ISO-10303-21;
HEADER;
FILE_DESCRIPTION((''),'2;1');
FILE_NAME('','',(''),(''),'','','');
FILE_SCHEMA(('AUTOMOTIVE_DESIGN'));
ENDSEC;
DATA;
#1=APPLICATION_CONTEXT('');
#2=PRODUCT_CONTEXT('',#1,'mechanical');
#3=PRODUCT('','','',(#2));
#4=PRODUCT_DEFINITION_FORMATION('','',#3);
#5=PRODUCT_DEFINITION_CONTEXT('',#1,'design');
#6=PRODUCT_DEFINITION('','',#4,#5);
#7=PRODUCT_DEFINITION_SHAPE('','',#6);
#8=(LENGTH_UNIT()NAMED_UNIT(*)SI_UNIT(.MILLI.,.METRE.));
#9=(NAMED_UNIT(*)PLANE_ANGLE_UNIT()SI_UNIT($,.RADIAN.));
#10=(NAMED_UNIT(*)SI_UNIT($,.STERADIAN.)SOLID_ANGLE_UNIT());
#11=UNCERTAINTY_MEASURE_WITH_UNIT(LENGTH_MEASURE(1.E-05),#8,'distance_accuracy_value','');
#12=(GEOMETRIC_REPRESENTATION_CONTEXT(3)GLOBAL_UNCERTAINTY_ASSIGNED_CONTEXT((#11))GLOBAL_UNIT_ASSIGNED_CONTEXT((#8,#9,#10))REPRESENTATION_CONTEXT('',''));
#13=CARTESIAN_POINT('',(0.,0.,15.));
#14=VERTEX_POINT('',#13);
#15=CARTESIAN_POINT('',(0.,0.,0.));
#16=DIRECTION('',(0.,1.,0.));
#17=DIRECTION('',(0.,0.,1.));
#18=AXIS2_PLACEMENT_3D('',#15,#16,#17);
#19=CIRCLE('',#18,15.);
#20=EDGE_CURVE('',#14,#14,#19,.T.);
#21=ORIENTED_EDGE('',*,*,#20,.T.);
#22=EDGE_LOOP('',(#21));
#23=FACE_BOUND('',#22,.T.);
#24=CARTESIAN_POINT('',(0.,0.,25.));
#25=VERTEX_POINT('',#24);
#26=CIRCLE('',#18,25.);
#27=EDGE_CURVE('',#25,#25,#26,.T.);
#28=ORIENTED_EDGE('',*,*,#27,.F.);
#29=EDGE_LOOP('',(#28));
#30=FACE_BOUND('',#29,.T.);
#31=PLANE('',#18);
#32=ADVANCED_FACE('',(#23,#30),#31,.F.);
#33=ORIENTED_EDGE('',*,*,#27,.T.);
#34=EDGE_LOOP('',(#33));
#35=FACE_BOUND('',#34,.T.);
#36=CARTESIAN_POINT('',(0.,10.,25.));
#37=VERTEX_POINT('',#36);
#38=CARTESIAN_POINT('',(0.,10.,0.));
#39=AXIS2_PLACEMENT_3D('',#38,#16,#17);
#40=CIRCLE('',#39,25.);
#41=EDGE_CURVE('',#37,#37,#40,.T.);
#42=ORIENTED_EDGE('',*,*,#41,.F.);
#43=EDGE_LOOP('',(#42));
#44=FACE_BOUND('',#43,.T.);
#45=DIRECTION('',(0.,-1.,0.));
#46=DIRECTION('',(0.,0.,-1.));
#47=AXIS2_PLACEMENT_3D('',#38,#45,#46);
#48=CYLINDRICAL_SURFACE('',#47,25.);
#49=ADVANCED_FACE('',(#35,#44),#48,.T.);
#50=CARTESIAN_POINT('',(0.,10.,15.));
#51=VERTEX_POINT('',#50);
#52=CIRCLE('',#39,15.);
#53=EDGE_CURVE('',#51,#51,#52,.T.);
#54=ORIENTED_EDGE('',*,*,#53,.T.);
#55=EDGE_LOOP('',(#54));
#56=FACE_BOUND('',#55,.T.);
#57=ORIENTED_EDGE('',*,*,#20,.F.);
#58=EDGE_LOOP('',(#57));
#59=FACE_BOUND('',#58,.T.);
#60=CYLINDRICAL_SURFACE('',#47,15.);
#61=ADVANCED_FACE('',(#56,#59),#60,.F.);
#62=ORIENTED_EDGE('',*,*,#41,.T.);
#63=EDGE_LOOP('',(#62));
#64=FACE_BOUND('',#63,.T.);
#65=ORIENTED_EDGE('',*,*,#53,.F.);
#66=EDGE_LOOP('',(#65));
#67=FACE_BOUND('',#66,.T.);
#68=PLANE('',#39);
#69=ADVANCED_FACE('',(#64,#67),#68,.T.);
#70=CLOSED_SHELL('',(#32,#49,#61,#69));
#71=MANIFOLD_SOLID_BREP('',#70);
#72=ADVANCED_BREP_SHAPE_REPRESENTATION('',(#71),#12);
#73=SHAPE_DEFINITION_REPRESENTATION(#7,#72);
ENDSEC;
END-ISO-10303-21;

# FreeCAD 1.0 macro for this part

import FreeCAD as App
import Part
import Sketcher
from FreeCAD import Vector

doc = App.newDocument("Part")
params = doc.addObject("Spreadsheet::Sheet", "Params")
for row, (alias, value) in enumerate([
    ("sketch1_diameter", "50 mm"),
    ("pad1_length", "10 mm"),
    ("sketch2_diameter", "30 mm"),
], start=1):
    params.set(f"A{row}", alias)
    params.set(f"B{row}", "=" + value)
    params.setAlias(f"B{row}", alias)

body = doc.addObject("PartDesign::Body", "Body")

sketch1 = body.newObject("Sketcher::SketchObject", "Sketch")
sketch1.AttachmentSupport = (doc.getObject("XZ_Plane"), [""])
sketch1.MapMode = "FlatFace"
sketch1.addGeometry(Part.Circle(Vector(0, 0, 0), Vector(0, 0, 1), 25), False)
sketch1.addConstraint([
    Sketcher.Constraint("Coincident", 0, 3, -1, 1),
    Sketcher.Constraint("Diameter", 0, 50.0),
])
sketch1.setExpression("Constraints[1]", "Params.sketch1_diameter")
pad1 = body.newObject("PartDesign::Pad", "Pad")
pad1.Profile = sketch1
pad1.setExpression("Length", "Params.pad1_length")
pad1.Reversed = True

sketch2 = body.newObject("Sketcher::SketchObject", "Sketch001")
sketch2.AttachmentSupport = (doc.getObject("XZ_Plane"), [""])
sketch2.MapMode = "FlatFace"
sketch2.addGeometry(Part.Circle(Vector(0, 0, 0), Vector(0, 0, 1), 15), False)
sketch2.addConstraint([
    Sketcher.Constraint("Coincident", 0, 3, -1, 1),
    Sketcher.Constraint("Diameter", 0, 30.0),
])
sketch2.setExpression("Constraints[1]", "Params.sketch2_diameter")
pocket1 = body.newObject("PartDesign::Pocket", "Pocket")
pocket1.Profile = sketch2
pocket1.Type = "ThroughAll"

doc.recompute()
